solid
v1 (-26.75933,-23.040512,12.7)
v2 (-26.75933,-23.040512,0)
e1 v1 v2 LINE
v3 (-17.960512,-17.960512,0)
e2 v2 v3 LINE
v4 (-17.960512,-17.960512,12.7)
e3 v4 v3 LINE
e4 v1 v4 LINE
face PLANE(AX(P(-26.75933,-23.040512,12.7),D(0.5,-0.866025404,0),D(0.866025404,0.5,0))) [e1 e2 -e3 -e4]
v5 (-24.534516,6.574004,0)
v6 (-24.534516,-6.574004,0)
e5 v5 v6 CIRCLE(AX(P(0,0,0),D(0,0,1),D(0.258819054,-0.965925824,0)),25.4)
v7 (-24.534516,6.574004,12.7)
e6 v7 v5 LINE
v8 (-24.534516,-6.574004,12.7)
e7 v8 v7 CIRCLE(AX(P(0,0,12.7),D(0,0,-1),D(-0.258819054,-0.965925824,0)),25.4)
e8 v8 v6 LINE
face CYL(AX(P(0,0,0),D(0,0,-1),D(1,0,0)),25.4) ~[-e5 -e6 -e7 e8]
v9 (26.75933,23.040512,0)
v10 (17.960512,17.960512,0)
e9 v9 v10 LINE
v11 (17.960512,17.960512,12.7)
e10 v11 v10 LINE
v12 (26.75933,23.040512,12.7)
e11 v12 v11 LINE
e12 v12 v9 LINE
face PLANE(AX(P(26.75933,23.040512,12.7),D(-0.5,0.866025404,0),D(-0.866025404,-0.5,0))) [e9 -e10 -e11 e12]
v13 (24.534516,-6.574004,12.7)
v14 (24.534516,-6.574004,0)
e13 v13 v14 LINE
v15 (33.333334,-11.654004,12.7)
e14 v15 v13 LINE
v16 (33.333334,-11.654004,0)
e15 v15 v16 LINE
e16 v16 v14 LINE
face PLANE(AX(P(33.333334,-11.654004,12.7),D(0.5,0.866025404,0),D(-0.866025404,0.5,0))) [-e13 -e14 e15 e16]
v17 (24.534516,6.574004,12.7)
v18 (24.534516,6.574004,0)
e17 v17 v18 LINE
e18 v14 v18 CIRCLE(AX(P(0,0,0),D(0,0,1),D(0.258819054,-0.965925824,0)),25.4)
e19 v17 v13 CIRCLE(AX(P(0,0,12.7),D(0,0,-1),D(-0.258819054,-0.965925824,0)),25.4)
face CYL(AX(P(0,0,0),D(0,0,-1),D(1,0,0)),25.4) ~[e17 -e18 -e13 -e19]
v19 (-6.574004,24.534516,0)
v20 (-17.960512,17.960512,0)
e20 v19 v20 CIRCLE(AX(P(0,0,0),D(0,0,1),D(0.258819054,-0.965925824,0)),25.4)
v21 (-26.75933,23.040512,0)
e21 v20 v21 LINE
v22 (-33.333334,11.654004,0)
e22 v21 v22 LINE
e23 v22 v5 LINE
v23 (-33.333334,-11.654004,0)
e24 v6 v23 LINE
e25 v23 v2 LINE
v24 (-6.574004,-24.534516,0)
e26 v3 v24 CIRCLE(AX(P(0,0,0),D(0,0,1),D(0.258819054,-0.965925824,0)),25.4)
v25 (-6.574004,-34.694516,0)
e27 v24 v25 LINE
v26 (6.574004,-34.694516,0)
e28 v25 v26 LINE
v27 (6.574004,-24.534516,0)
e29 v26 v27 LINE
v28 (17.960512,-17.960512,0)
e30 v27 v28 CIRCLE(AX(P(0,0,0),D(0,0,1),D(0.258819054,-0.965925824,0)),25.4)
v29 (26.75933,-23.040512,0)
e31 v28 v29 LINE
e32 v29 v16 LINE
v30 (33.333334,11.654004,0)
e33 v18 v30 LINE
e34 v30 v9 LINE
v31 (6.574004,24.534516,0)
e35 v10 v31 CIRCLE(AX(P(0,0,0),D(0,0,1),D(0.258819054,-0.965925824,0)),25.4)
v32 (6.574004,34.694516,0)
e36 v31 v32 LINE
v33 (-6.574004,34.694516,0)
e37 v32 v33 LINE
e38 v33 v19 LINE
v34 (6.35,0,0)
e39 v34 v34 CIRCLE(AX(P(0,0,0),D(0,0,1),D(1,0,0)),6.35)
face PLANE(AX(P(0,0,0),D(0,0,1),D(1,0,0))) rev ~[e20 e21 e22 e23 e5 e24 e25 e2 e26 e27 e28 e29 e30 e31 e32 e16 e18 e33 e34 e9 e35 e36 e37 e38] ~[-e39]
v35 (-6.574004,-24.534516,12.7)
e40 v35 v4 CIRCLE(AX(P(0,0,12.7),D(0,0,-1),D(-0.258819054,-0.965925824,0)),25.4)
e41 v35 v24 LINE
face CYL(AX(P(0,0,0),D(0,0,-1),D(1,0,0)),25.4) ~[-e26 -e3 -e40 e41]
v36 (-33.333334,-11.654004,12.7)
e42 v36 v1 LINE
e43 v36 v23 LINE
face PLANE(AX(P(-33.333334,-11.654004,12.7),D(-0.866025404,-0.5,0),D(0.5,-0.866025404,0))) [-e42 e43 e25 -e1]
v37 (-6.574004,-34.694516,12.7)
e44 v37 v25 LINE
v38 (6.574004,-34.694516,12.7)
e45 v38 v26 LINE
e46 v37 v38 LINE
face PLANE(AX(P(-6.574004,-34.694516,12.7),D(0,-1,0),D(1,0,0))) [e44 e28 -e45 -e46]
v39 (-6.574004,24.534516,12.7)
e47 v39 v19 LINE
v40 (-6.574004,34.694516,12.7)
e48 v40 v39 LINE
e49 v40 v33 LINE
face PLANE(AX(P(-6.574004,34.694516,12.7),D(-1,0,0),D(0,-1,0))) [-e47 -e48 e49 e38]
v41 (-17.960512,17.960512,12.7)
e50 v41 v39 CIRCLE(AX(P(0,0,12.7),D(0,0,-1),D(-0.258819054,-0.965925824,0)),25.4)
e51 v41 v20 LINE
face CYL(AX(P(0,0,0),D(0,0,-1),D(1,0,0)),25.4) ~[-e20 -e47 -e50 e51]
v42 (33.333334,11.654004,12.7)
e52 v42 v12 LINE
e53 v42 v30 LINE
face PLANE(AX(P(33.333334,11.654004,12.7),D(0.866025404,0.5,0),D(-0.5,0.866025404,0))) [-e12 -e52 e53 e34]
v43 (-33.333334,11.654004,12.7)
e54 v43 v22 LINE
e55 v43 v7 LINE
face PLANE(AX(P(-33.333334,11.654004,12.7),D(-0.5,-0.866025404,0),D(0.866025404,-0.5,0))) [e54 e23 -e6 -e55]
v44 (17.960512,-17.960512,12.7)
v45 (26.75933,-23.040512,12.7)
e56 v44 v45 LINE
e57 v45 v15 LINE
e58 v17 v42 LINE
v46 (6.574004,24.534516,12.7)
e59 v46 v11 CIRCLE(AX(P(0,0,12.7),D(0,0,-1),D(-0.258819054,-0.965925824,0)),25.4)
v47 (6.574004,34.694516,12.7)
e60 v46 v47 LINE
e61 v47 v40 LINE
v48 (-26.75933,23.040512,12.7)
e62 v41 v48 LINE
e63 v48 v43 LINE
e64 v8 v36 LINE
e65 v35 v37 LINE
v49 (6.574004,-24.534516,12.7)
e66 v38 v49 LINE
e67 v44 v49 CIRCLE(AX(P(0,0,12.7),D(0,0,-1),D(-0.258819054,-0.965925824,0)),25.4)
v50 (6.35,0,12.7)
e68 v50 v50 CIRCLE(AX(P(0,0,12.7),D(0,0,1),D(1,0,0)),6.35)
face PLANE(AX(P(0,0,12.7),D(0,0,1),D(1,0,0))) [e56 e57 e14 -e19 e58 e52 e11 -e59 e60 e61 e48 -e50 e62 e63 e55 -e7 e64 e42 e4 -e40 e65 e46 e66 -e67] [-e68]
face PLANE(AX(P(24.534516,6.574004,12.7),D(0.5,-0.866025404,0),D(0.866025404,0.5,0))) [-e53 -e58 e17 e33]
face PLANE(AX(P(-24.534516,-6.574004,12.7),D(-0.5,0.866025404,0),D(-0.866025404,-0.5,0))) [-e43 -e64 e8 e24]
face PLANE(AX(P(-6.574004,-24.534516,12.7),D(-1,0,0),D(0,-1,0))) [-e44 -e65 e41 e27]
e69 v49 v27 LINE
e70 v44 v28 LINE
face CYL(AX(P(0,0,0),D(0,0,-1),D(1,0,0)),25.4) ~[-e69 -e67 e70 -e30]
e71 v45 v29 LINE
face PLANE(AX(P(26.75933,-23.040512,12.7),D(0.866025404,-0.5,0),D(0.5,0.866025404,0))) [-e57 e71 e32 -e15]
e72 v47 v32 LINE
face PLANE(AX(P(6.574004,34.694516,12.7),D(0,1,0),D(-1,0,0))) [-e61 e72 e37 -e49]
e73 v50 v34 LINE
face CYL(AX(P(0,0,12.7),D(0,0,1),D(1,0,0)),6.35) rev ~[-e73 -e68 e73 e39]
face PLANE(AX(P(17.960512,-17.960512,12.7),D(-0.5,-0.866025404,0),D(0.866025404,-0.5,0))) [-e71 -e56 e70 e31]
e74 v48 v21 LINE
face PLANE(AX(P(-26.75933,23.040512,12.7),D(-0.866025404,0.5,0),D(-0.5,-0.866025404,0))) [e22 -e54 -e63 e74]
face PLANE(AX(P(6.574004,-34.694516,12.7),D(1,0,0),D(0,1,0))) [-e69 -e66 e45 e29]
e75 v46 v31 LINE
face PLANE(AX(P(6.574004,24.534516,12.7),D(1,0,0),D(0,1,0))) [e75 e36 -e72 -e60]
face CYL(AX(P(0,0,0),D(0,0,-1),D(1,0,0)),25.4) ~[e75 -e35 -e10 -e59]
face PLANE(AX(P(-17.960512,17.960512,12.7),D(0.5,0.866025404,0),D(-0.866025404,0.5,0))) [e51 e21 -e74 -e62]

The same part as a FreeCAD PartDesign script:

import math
import FreeCAD as App
import Part
import Sketcher

V = App.Vector
Q = App.Units.Quantity

doc = App.newDocument("Part")
body = doc.addObject("PartDesign::Body", "Body")

# Sketch on XY plane
sketch1 = body.newObject("Sketcher::SketchObject", "Sketch")
sketch1.AttachmentSupport = (doc.getObject("XY_Plane"), [""])
sketch1.MapMode = "FlatFace"
sketch1.addGeometry(Part.Circle(V(0, 0, 0), V(0, 0, 1), 25.4), False)
sketch1.addConstraint(Sketcher.Constraint("Coincident", 0, 3, -1, 1))
sketch1.addConstraint(Sketcher.Constraint("Diameter", 0, Q("2 in")))
pad1 = body.newObject("PartDesign::Pad", "Pad")
pad1.Profile = sketch1
pad1.Length = Q("0.5 in")

# Sketch on XY plane
sketch2 = body.newObject("Sketcher::SketchObject", "Sketch001")
sketch2.AttachmentSupport = (doc.getObject("XY_Plane"), [""])
sketch2.MapMode = "FlatFace"
sketch2.AttachmentOffset = App.Placement(V(0, 0, 0.5 * 25.4), App.Rotation())
sketch2.addGeometry(Part.LineSegment(V(6.574004, -34.694516, 0), V(6.574004, -24.534516, 0)), False)
sketch2.addGeometry(Part.ArcOfCircle(Part.Circle(V(0, 0.000002, 0), V(0, 0, 1), 25.400002), math.radians(-104.999999), math.radians(-75.000001)), False)
sketch2.addGeometry(Part.LineSegment(V(-6.574004, -24.534516, 0), V(-6.574004, -34.694516, 0)), False)
sketch2.addGeometry(Part.LineSegment(V(-6.574004, -34.694516, 0), V(6.574004, -34.694516, 0)), False)
sketch2.addConstraint(Sketcher.Constraint("Coincident", 0, 2, 1, 2))
sketch2.addConstraint(Sketcher.Constraint("Coincident", 1, 1, 2, 1))
sketch2.addConstraint(Sketcher.Constraint("Coincident", 2, 2, 3, 1))
sketch2.addConstraint(Sketcher.Constraint("Coincident", 3, 2, 0, 1))
sketch2.addConstraint(Sketcher.Constraint("Vertical", 0))
sketch2.addConstraint(Sketcher.Constraint("Vertical", 2))
sketch2.addConstraint(Sketcher.Constraint("Horizontal", 3))
sketch2.addConstraint(Sketcher.Constraint("Coincident", 1, 3, -1, 1))
sketch2.addConstraint(Sketcher.Constraint("Horizontal", 0, 2, 1, 1))
sketch2.addConstraint(Sketcher.Constraint("Radius", 1, Q("1.0000001 in")))
sketch2.addConstraint(Sketcher.Constraint("DistanceY", 0, 1, 0, 2, Q("0.4 in")))
sketch2.addConstraint(Sketcher.Constraint("DistanceX", 3, 1, 3, 2, Q("13.148008 mm")))
pad2 = body.newObject("PartDesign::Pad", "Pad001")
pad2.Profile = sketch2
pad2.Length = Q("0.5 in")
pad2.Reversed = True
body2 = doc.addObject("PartDesign::Body", "Body001")
doc.recompute()

body2.BaseFeature = body
doc.recompute()

body3 = doc.addObject("PartDesign::Body", "Body002")
body3.BaseFeature = body
body3.Placement = App.Placement(V(0, 0, 0), App.Rotation(V(0, 0, -1), 60))
boolean = body2.newObject("PartDesign::Boolean", "Boolean")
boolean.Type = "Fuse"
boolean.addObjects([body3])
doc.recompute()

body4 = doc.addObject("PartDesign::Body", "Body003")
body4.BaseFeature = body
body4.Placement = App.Placement(V(0, 0, 0), App.Rotation(V(0, 0, -1), 120))
boolean2 = body2.newObject("PartDesign::Boolean", "Boolean001")
boolean2.Type = "Fuse"
boolean2.addObjects([body4])
doc.recompute()

body5 = doc.addObject("PartDesign::Body", "Body004")
body5.BaseFeature = body
body5.Placement = App.Placement(V(0, 0, 0), App.Rotation(V(0, 0, -1), 180))
boolean3 = body2.newObject("PartDesign::Boolean", "Boolean002")
boolean3.Type = "Fuse"
boolean3.addObjects([body5])
doc.recompute()

body6 = doc.addObject("PartDesign::Body", "Body005")
body6.BaseFeature = body
body6.Placement = App.Placement(V(0, 0, 0), App.Rotation(V(0, 0, -1), 240))
boolean4 = body2.newObject("PartDesign::Boolean", "Boolean003")
boolean4.Type = "Fuse"
boolean4.addObjects([body6])
doc.recompute()

body.Placement = App.Placement(V(0, 0, 0), App.Rotation(V(0, 0, -1), 300))
boolean5 = body2.newObject("PartDesign::Boolean", "Boolean004")
boolean5.Type = "Fuse"
boolean5.addObjects([body])

# Sketch on XY plane
sketch3 = body2.newObject("Sketcher::SketchObject", "Sketch002")
sketch3.AttachmentSupport = (doc.getObject("XY_Plane001"), [""])
sketch3.MapMode = "FlatFace"
sketch3.AttachmentOffset = App.Placement(V(0, 0, 0.5 * 25.4), App.Rotation())
sketch3.addGeometry(Part.Circle(V(0, 0, 0), V(0, 0, 1), 6.35), False)
sketch3.addConstraint(Sketcher.Constraint("Coincident", 0, 3, -1, 1))
sketch3.addConstraint(Sketcher.Constraint("Diameter", 0, Q("0.5 in")))
pocket1 = body2.newObject("PartDesign::Pocket", "Pocket")
pocket1.Profile = sketch3
pocket1.Length = Q("0.5 in")

doc.recompute()
